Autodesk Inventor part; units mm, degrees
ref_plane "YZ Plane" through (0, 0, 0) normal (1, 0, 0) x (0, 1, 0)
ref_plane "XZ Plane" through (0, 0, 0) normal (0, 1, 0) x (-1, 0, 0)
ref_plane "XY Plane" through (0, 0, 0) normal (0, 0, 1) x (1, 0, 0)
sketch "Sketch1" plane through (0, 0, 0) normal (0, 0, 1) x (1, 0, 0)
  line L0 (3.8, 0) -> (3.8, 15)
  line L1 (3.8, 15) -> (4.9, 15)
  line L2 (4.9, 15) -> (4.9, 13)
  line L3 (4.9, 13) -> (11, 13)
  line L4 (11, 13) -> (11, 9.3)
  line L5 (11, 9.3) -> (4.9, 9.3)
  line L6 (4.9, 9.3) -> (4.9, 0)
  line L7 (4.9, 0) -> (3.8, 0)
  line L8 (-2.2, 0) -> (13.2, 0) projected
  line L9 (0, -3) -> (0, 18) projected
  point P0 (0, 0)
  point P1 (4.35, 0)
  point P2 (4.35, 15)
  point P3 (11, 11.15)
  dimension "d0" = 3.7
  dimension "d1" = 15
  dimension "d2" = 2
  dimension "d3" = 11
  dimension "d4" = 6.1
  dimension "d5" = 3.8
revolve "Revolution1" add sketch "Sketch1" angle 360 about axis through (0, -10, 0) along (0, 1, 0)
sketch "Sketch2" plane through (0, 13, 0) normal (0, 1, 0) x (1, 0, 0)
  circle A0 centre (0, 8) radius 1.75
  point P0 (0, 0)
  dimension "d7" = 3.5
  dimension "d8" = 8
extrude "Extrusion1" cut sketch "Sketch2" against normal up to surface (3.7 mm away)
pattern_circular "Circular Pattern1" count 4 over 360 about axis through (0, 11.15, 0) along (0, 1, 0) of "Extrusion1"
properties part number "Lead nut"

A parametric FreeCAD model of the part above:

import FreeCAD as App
import Part
import Sketcher
from FreeCAD import Vector
Q = App.Units.Quantity


def add_polygon(sketch, points):
    """Adds a closed chain of lines whose ends are joined by coincident constraints."""
    first, n = sketch.GeometryCount, len(points)
    for a, b in zip(points, points[1:] + points[:1]):
        sketch.addGeometry(Part.LineSegment(App.Vector(*a, 0), App.Vector(*b, 0)), False)
    for i in range(n):
        sketch.addConstraint(Sketcher.Constraint("Coincident", first + i, 2, first + (i + 1) % n, 1))

doc = App.newDocument("Part")
body = doc.addObject("PartDesign::Body", "Body")

# Sketch on XY plane
sketch1 = body.newObject("Sketcher::SketchObject", "Sketch")
sketch1.AttachmentSupport = (doc.getObject("XY_Plane"), [""])
sketch1.MapMode = "FlatFace"
add_polygon(sketch1, [(3.8, 15), (3.8, 0), (4.9, 0), (4.9, 9.3), (11, 9.3), (11, 13), (4.9, 13), (4.9, 15)])  # lines 0-7
sketch1.addConstraint([
    Sketcher.Constraint("Vertical", 0),
    Sketcher.Constraint("Horizontal", 1),
    Sketcher.Constraint("Vertical", 2),
    Sketcher.Constraint("Horizontal", 3),
    Sketcher.Constraint("Vertical", 4),
    Sketcher.Constraint("Horizontal", 5),
    Sketcher.Constraint("Vertical", 6),
    Sketcher.Constraint("Horizontal", 7),
    Sketcher.Constraint("PointOnObject", 0, 2, -1),
    Sketcher.Constraint("Vertical", 2, 2, 5, 2),
    Sketcher.Constraint("DistanceY", 0, 2, 0, 1, Q("15 mm")),
    Sketcher.Constraint("DistanceY", 6, 1, 6, 2, Q("2 mm")),
    Sketcher.Constraint("DistanceX", 3, 1, 3, 2, Q("6.1 mm")),
    Sketcher.Constraint("DistanceY", 4, 1, 4, 2, Q("3.7 mm")),
    Sketcher.Constraint("DistanceX", -1, 1, 3, 2, Q("11 mm")),
    Sketcher.Constraint("DistanceX", -1, 1, 0, 2, Q("3.8 mm")),
])
revolution = body.newObject("PartDesign::Revolution", "Revolution")
revolution.Profile = sketch1
revolution.ReferenceAxis = (sketch1, ["V_Axis"])
revolution.Angle = 360

# Sketch on XZ plane
sketch2 = body.newObject("Sketcher::SketchObject", "Sketch001")
sketch2.AttachmentSupport = (doc.getObject("XZ_Plane"), [""])
sketch2.MapMode = "FlatFace"
sketch2.AttachmentOffset = App.Placement(Vector(0, 0, -13), App.Rotation())
sketch2.addGeometry(Part.Circle(Vector(0, -8, 0), Vector(0, 0, 1), 1.8), False)
sketch2.addConstraint([
    Sketcher.Constraint("PointOnObject", 0, 3, -2),
    Sketcher.Constraint("Diameter", 0, Q("3.5 mm")),
    Sketcher.Constraint("DistanceY", 0, 3, -1, 1, Q("8 mm")),
])
pocket1 = body.newObject("PartDesign::Pocket", "Pocket")
pocket1.Profile = sketch2
pocket1.Length = 3.7
pocket1.Reversed = True
doc.recompute()

polarpattern = body.newObject("PartDesign::PolarPattern", "PolarPattern")
polarpattern.Originals = [pocket1]
polarpattern.Axis = (doc.getObject("Y_Axis"), [""])
polarpattern.Angle = 360
polarpattern.Occurrences = 4
body.Tip = polarpattern

doc.recompute()
